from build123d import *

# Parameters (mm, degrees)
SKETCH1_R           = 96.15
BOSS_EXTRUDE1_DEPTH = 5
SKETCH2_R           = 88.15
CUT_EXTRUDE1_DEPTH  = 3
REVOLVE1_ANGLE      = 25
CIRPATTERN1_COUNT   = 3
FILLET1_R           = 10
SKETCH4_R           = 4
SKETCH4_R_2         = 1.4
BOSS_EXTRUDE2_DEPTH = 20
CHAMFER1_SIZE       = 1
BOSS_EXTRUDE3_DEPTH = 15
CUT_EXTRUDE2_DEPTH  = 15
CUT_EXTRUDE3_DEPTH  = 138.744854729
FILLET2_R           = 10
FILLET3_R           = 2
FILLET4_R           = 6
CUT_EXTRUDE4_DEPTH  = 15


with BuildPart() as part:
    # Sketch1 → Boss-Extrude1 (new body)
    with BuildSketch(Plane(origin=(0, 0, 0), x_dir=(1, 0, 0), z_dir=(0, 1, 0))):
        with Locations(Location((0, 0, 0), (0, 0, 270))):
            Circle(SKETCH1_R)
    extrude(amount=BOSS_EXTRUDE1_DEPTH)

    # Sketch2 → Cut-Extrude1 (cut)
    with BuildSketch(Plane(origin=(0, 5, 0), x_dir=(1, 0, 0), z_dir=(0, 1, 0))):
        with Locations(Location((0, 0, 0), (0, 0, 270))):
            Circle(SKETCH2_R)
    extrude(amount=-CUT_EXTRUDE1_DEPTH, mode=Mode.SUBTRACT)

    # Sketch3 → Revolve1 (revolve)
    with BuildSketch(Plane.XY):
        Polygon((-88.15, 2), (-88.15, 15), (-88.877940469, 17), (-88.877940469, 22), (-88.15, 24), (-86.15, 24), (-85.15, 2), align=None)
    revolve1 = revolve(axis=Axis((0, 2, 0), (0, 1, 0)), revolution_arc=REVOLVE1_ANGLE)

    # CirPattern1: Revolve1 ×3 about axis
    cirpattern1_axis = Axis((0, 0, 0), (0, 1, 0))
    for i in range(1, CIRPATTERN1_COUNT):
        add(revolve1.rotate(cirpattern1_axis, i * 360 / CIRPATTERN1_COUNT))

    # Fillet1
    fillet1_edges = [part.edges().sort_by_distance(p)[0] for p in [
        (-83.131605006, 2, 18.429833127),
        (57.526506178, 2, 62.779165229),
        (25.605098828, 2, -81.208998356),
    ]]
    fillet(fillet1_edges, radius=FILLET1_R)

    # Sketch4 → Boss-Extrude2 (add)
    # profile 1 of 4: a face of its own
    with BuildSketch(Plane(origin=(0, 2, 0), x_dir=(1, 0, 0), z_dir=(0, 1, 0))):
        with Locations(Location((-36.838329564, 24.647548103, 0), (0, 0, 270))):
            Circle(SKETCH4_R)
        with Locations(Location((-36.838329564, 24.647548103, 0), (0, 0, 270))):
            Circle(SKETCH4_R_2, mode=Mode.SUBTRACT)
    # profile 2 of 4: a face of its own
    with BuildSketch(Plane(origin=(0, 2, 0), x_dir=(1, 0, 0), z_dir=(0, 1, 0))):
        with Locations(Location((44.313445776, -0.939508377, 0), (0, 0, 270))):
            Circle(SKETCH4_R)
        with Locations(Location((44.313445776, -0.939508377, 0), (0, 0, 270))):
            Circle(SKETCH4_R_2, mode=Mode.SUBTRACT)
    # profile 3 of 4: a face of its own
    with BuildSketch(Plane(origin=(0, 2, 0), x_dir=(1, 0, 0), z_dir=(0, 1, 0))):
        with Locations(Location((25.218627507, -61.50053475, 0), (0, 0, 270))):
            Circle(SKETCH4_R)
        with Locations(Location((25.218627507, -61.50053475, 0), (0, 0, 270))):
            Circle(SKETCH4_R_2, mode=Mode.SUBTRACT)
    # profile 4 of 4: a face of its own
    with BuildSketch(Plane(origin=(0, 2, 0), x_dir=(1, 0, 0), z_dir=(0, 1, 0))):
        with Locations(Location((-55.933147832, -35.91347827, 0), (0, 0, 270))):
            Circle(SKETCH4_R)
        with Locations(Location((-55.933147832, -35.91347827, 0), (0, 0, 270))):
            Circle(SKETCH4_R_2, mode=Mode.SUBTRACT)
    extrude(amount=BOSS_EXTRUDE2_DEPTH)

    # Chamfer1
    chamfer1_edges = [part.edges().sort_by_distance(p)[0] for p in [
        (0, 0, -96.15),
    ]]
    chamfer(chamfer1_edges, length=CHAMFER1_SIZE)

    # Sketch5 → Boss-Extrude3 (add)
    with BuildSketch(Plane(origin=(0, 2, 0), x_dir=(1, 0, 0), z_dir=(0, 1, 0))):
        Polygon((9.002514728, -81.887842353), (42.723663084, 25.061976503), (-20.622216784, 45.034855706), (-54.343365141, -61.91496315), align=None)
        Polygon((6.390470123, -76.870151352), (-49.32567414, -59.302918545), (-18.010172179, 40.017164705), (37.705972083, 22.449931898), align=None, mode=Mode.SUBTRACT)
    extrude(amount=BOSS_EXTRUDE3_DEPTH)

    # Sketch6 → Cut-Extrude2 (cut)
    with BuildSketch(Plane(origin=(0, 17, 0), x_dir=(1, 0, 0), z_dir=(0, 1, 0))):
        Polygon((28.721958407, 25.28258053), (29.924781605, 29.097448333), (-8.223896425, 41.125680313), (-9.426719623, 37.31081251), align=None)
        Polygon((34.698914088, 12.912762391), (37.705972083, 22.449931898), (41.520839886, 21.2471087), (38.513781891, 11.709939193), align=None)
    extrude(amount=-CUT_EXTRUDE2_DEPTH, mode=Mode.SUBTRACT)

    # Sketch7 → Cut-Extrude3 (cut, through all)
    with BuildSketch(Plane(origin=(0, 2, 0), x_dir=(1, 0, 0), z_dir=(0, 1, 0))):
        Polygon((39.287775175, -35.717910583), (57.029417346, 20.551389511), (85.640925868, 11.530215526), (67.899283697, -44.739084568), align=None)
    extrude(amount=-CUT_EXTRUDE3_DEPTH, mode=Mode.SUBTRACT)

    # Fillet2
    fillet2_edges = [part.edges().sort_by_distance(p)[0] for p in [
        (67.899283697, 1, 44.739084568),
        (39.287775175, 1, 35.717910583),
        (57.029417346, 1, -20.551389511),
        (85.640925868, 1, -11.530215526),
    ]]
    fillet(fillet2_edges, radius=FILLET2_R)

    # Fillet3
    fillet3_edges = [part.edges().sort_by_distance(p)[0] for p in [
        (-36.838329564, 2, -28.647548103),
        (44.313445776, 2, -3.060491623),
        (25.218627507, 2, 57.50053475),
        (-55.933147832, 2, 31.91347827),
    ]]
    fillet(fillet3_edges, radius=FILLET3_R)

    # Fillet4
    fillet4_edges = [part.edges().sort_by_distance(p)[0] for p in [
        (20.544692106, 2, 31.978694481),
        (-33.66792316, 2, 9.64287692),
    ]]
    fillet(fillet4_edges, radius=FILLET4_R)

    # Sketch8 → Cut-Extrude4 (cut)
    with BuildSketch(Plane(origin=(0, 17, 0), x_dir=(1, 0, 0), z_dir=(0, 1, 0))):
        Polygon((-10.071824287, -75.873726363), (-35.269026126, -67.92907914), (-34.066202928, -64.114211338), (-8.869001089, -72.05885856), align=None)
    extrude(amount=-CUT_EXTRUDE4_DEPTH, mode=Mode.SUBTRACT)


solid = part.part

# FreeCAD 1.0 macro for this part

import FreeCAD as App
import Part
import Sketcher
Q = App.Units.Quantity


def edges_at(feature, points):
    """Names of the edges that pass closest to the given points."""
    edges = feature.Shape.Edges
    near = lambda p: min(range(len(edges)), key=lambda i: edges[i].distToShape(Part.Vertex(*p))[0])
    return sorted({f"Edge{near(p) + 1}" for p in points})


def add_polygon(sketch, points):
    """Adds a closed chain of lines whose ends are joined by coincident constraints."""
    first, n = sketch.GeometryCount, len(points)
    for a, b in zip(points, points[1:] + points[:1]):
        sketch.addGeometry(Part.LineSegment(App.Vector(*a, 0), App.Vector(*b, 0)), False)
    for i in range(n):
        sketch.addConstraint(Sketcher.Constraint("Coincident", first + i, 2, first + (i + 1) % n, 1))

doc = App.newDocument("Part")
body = doc.addObject("PartDesign::Body", "Body")

# Sketch on XZ plane
sketch1 = body.newObject("Sketcher::SketchObject", "Sketch")
sketch1.AttachmentSupport = (doc.getObject("XZ_Plane"), [""])
sketch1.MapMode = "FlatFace"
sketch1.addGeometry(Part.Circle(App.Vector(0, 0, 0), App.Vector(0, 0, 1), 96), False)
sketch1.addConstraint(Sketcher.Constraint("Coincident", 0, 3, -1, 1))
sketch1.addConstraint(Sketcher.Constraint("Diameter", 0, Q("192.3 mm")))
pad1 = body.newObject("PartDesign::Pad", "Pad")
pad1.Profile = sketch1
pad1.Length = 5
pad1.Reversed = True

# Sketch on XZ plane
sketch2 = body.newObject("Sketcher::SketchObject", "Sketch001")
sketch2.AttachmentSupport = (doc.getObject("XZ_Plane"), [""])
sketch2.MapMode = "FlatFace"
sketch2.AttachmentOffset = App.Placement(App.Vector(0, 0, -5), App.Rotation())
sketch2.addGeometry(Part.Circle(App.Vector(0, 0, 0), App.Vector(0, 0, 1), 88), False)
sketch2.addConstraint(Sketcher.Constraint("Coincident", 0, 3, -1, 1))
sketch2.addConstraint(Sketcher.Constraint("Diameter", 0, Q("176.3 mm")))
pocket1 = body.newObject("PartDesign::Pocket", "Pocket")
pocket1.Profile = sketch2
pocket1.Length = 3
pocket1.Reversed = True

# Sketch on XY plane
sketch3 = body.newObject("Sketcher::SketchObject", "Sketch002")
sketch3.AttachmentSupport = (doc.getObject("XY_Plane"), [""])
sketch3.MapMode = "FlatFace"
add_polygon(sketch3, [(-88.2, 15), (-88.2, 2), (-85.2, 2), (-86.2, 24), (-88.2, 24), (-88.9, 22), (-88.9, 17)])  # lines 0-6
sketch3.addConstraint(Sketcher.Constraint("Vertical", 0))
sketch3.addConstraint(Sketcher.Constraint("Horizontal", 1))
sketch3.addConstraint(Sketcher.Constraint("Horizontal", 3))
sketch3.addConstraint(Sketcher.Constraint("Vertical", 5))
sketch3.addConstraint(Sketcher.Constraint("Vertical", 0, 2, 3, 2))
sketch3.addConstraint(Sketcher.Constraint("Equal", 4, 6))
sketch3.addConstraint(Sketcher.Constraint("DistanceX", 1, 1, 1, 2, Q("3 mm")))
sketch3.addConstraint(Sketcher.Constraint("DistanceX", 3, 2, 3, 1, Q("2 mm")))
sketch3.addConstraint(Sketcher.Constraint("DistanceY", 0, 2, 0, 1, Q("13 mm")))
sketch3.addConstraint(Sketcher.Constraint("DistanceY", 5, 2, 5, 1, Q("5 mm")))
sketch3.addConstraint(Sketcher.Constraint("Angle", 4, Q("-110 deg")))
sketch3.addConstraint(Sketcher.Constraint("DistanceY", -1, 1, 0, 2, Q("2 mm")))
sketch3.addConstraint(Sketcher.Constraint("DistanceY", -1, 1, 2, 2, Q("24 mm")))
sketch3.addConstraint(Sketcher.Constraint("DistanceX", 0, 2, -1, 1, Q("88.15 mm")))
revolution = body.newObject("PartDesign::Revolution", "Revolution")
revolution.Profile = sketch3
revolution.ReferenceAxis = (sketch3, ["V_Axis"])
revolution.Angle = 25
doc.recompute()

polarpattern = body.newObject("PartDesign::PolarPattern", "PolarPattern")
polarpattern.Originals = [revolution]
polarpattern.Axis = (doc.getObject("Y_Axis"), [""])
polarpattern.Angle = 360
polarpattern.Occurrences = 3
body.Tip = polarpattern
doc.recompute()

fillet = body.newObject("PartDesign::Fillet", "Fillet")
fillet.Base = (polarpattern, edges_at(polarpattern, [(-83.132, 2, 18.43), (57.527, 2, 62.779), (25.605, 2, -81.209)]))
fillet.Radius = 10

# Sketch on XZ plane
sketch4 = body.newObject("Sketcher::SketchObject", "Sketch003")
sketch4.AttachmentSupport = (doc.getObject("XZ_Plane"), [""])
sketch4.MapMode = "FlatFace"
sketch4.AttachmentOffset = App.Placement(App.Vector(0, 0, -2), App.Rotation())
sketch4.addGeometry(Part.Circle(App.Vector(-36.8, -24.6, 0), App.Vector(0, 0, 1), 4), False)
sketch4.addGeometry(Part.Circle(App.Vector(-36.8, -24.6, 0), App.Vector(0, 0, 1), 1.4), False)
sketch4.addGeometry(Part.Circle(App.Vector(44.3, 0.9, 0), App.Vector(0, 0, 1), 4), False)
sketch4.addGeometry(Part.Circle(App.Vector(44.3, 0.9, 0), App.Vector(0, 0, 1), 1.4), False)
sketch4.addGeometry(Part.Circle(App.Vector(25.2, 61.5, 0), App.Vector(0, 0, 1), 4), False)
sketch4.addGeometry(Part.Circle(App.Vector(25.2, 61.5, 0), App.Vector(0, 0, 1), 1.4), False)
sketch4.addGeometry(Part.Circle(App.Vector(-55.9, 35.9, 0), App.Vector(0, 0, 1), 4), False)
sketch4.addGeometry(Part.Circle(App.Vector(-55.9, 35.9, 0), App.Vector(0, 0, 1), 1.4), False)
sketch4.addConstraint(Sketcher.Constraint("Coincident", 1, 3, 0, 3))
sketch4.addConstraint(Sketcher.Constraint("Coincident", 3, 3, 2, 3))
sketch4.addConstraint(Sketcher.Constraint("Coincident", 5, 3, 4, 3))
sketch4.addConstraint(Sketcher.Constraint("Coincident", 7, 3, 6, 3))
sketch4.addConstraint(Sketcher.Constraint("Equal", 0, 2))
sketch4.addConstraint(Sketcher.Constraint("Equal", 1, 3))
sketch4.addConstraint(Sketcher.Constraint("Equal", 2, 4))
sketch4.addConstraint(Sketcher.Constraint("Equal", 3, 5))
sketch4.addConstraint(Sketcher.Constraint("Equal", 4, 6))
sketch4.addConstraint(Sketcher.Constraint("Equal", 5, 7))
sketch4.addConstraint(Sketcher.Constraint("Diameter", 0, Q("8 mm")))
sketch4.addConstraint(Sketcher.Constraint("Diameter", 1, Q("2.8 mm")))
sketch4.addConstraint(Sketcher.Constraint("DistanceX", 0, 3, -1, 1, Q("36.83833 mm")))
sketch4.addConstraint(Sketcher.Constraint("DistanceY", 0, 3, -1, 1, Q("24.647548 mm")))
sketch4.addConstraint(Sketcher.Constraint("DistanceY", -1, 1, 2, 3, Q("0.939508 mm")))
sketch4.addConstraint(Sketcher.Constraint("DistanceY", -1, 1, 6, 3, Q("35.913478 mm")))
sketch4.addConstraint(Sketcher.Constraint("DistanceX", 4, 3, 2, 3, Q("19.094818 mm")))
sketch4.addConstraint(Sketcher.Constraint("DistanceX", 6, 3, 0, 3, Q("19.094818 mm")))
sketch4.addConstraint(Sketcher.Constraint("DistanceX", -1, 1, 2, 3, Q("44.313446 mm")))
sketch4.addConstraint(Sketcher.Constraint("DistanceY", -1, 1, 4, 3, Q("61.500535 mm")))
pad2 = body.newObject("PartDesign::Pad", "Pad001")
pad2.Profile = sketch4
pad2.Length = 20
pad2.Reversed = True
doc.recompute()

chamfer = body.newObject("PartDesign::Chamfer", "Chamfer")
chamfer.Base = (pad2, edges_at(pad2, [(0, 0, -96.15)]))
chamfer.Size = 1

# Sketch on XZ plane
sketch5 = body.newObject("Sketcher::SketchObject", "Sketch004")
sketch5.AttachmentSupport = (doc.getObject("XZ_Plane"), [""])
sketch5.MapMode = "FlatFace"
sketch5.AttachmentOffset = App.Placement(App.Vector(0, 0, -2), App.Rotation())
add_polygon(sketch5, [(9, 82), (43, -25), (-21, -45), (-54, 62)])  # lines 0-3
add_polygon(sketch5, [(38, -22), (6, 77), (-49, 59), (-18, -40)])  # lines 4-7
sketch5.addConstraint(Sketcher.Constraint("Perpendicular", 0, 1))
sketch5.addConstraint(Sketcher.Constraint("Perpendicular", 1, 2))
sketch5.addConstraint(Sketcher.Constraint("Perpendicular", 2, 3))
sketch5.addConstraint(Sketcher.Constraint("Perpendicular", 3, 4))
sketch5.addConstraint(Sketcher.Constraint("Perpendicular", 4, 5))
sketch5.addConstraint(Sketcher.Constraint("Perpendicular", 5, 6))
sketch5.addConstraint(Sketcher.Constraint("Perpendicular", 6, 7))
sketch5.addConstraint(Sketcher.Constraint("Angle", 0, Q("-72.5 deg")))
sketch5.addConstraint(Sketcher.Constraint("Distance", 0, Q("112.14 mm")))
sketch5.addConstraint(Sketcher.Constraint("Distance", 1, Q("66.42 mm")))
sketch5.addConstraint(Sketcher.Constraint("Distance", 4, Q("104.14 mm")))
sketch5.addConstraint(Sketcher.Constraint("Distance", 5, Q("58.42 mm")))
sketch5.addConstraint(Sketcher.Constraint("DistanceX", -1, 1, 4, 2, Q("6.39047 mm")))
sketch5.addConstraint(Sketcher.Constraint("DistanceY", -1, 1, 4, 2, Q("76.870151 mm")))
sketch5.addConstraint(Sketcher.Constraint("DistanceY", 4, 2, 3, 2, Q("5.017691 mm")))
sketch5.addConstraint(Sketcher.Constraint("DistanceX", 2, 2, 5, 2, Q("5.017691 mm")))
pad3 = body.newObject("PartDesign::Pad", "Pad002")
pad3.Profile = sketch5
pad3.Length = 15
pad3.Reversed = True

# Sketch on XZ plane
sketch6 = body.newObject("Sketcher::SketchObject", "Sketch005")
sketch6.AttachmentSupport = (doc.getObject("XZ_Plane"), [""])
sketch6.MapMode = "FlatFace"
sketch6.AttachmentOffset = App.Placement(App.Vector(0, 0, -17), App.Rotation())
add_polygon(sketch6, [(28.7, -25.3), (29.9, -29.1), (-8.2, -41.1), (-9.4, -37.3)])  # lines 0-3
add_polygon(sketch6, [(37.7, -22.4), (34.7, -12.9), (38.5, -11.7), (41.5, -21.2)])  # lines 4-7
sketch6.addConstraint(Sketcher.Constraint("Perpendicular", 0, 1))
sketch6.addConstraint(Sketcher.Constraint("Perpendicular", 1, 2))
sketch6.addConstraint(Sketcher.Constraint("Perpendicular", 2, 3))
sketch6.addConstraint(Sketcher.Constraint("Perpendicular", 3, 4))
sketch6.addConstraint(Sketcher.Constraint("Perpendicular", 4, 5))
sketch6.addConstraint(Sketcher.Constraint("Perpendicular", 5, 6))
sketch6.addConstraint(Sketcher.Constraint("Perpendicular", 6, 7))
sketch6.addConstraint(Sketcher.Constraint("Equal", 2, 5))
sketch6.addConstraint(Sketcher.Constraint("Distance", 0, Q("4 mm")))
sketch6.addConstraint(Sketcher.Constraint("Distance", 1, Q("40 mm")))
sketch6.addConstraint(Sketcher.Constraint("Distance", 4, Q("10 mm")))
sketch6.addConstraint(Sketcher.Constraint("Angle", 0, Q("-72.5 deg")))
sketch6.addConstraint(Sketcher.Constraint("DistanceX", 0, 2, 5, 2, Q("8.589 mm")))
sketch6.addConstraint(Sketcher.Constraint("DistanceX", -1, 1, 0, 2, Q("29.924782 mm")))
sketch6.addConstraint(Sketcher.Constraint("DistanceY", 0, 2, -1, 1, Q("29.097448 mm")))
sketch6.addConstraint(Sketcher.Constraint("DistanceY", 5, 2, -1, 1, Q("11.709939 mm")))
pocket2 = body.newObject("PartDesign::Pocket", "Pocket001")
pocket2.Profile = sketch6
pocket2.Length = 15
pocket2.Reversed = True

# Sketch on XZ plane
sketch7 = body.newObject("Sketcher::SketchObject", "Sketch006")
sketch7.AttachmentSupport = (doc.getObject("XZ_Plane"), [""])
sketch7.MapMode = "FlatFace"
sketch7.AttachmentOffset = App.Placement(App.Vector(0, 0, -2), App.Rotation())
add_polygon(sketch7, [(57, -21), (39, 36), (68, 45), (86, -12)])  # lines 0-3
sketch7.addConstraint(Sketcher.Constraint("Perpendicular", 0, 1))
sketch7.addConstraint(Sketcher.Constraint("Perpendicular", 1, 2))
sketch7.addConstraint(Sketcher.Constraint("Perpendicular", 2, 3))
sketch7.addConstraint(Sketcher.Constraint("Distance", 0, Q("59 mm")))
sketch7.addConstraint(Sketcher.Constraint("Distance", 1, Q("30 mm")))
sketch7.addConstraint(Sketcher.Constraint("Angle", 0, Q("107.5 deg")))
sketch7.addConstraint(Sketcher.Constraint("DistanceY", -1, 1, 0, 2, Q("35.717911 mm")))
sketch7.addConstraint(Sketcher.Constraint("DistanceX", -1, 1, 0, 2, Q("39.287775 mm")))
pocket3 = body.newObject("PartDesign::Pocket", "Pocket002")
pocket3.Profile = sketch7
pocket3.Type = "ThroughAll"
pocket3.Reversed = True
doc.recompute()

fillet2 = body.newObject("PartDesign::Fillet", "Fillet001")
fillet2.Base = (pocket3, edges_at(pocket3, [
    (67.899, 1, 44.739),
    (39.288, 1, 35.718),
    (57.029, 1, -20.551),
    (85.641, 1, -11.53),
]))
fillet2.Radius = 10
doc.recompute()

fillet3 = body.newObject("PartDesign::Fillet", "Fillet002")
fillet3.Base = (fillet2, edges_at(fillet2, [
    (-36.838, 2, -28.648),
    (44.313, 2, -3.06),
    (25.219, 2, 57.501),
    (-55.933, 2, 31.913),
]))
fillet3.Radius = 2
doc.recompute()

fillet4 = body.newObject("PartDesign::Fillet", "Fillet003")
fillet4.Base = (fillet3, edges_at(fillet3, [(20.545, 2, 31.979), (-33.668, 2, 9.643)]))
fillet4.Radius = 6

# Sketch on XZ plane
sketch8 = body.newObject("Sketcher::SketchObject", "Sketch007")
sketch8.AttachmentSupport = (doc.getObject("XZ_Plane"), [""])
sketch8.MapMode = "FlatFace"
sketch8.AttachmentOffset = App.Placement(App.Vector(0, 0, -17), App.Rotation())
add_polygon(sketch8, [(-35.3, 67.9), (-10.1, 75.9), (-8.9, 72.1), (-34.1, 64.1)])  # lines 0-3
sketch8.addConstraint(Sketcher.Constraint("Perpendicular", 0, 1))
sketch8.addConstraint(Sketcher.Constraint("Perpendicular", 1, 2))
sketch8.addConstraint(Sketcher.Constraint("Perpendicular", 2, 3))
sketch8.addConstraint(Sketcher.Constraint("Distance", 1, Q("4 mm")))
sketch8.addConstraint(Sketcher.Constraint("Angle", 0, Q("17.5 deg")))
sketch8.addConstraint(Sketcher.Constraint("Distance", 0, Q("26.42 mm")))
sketch8.addConstraint(Sketcher.Constraint("DistanceX", 1, 2, -1, 1, Q("8.869001 mm")))
sketch8.addConstraint(Sketcher.Constraint("DistanceY", -1, 1, 1, 2, Q("72.058859 mm")))
pocket4 = body.newObject("PartDesign::Pocket", "Pocket003")
pocket4.Profile = sketch8
pocket4.Length = 15
pocket4.Reversed = True

doc.recompute()
